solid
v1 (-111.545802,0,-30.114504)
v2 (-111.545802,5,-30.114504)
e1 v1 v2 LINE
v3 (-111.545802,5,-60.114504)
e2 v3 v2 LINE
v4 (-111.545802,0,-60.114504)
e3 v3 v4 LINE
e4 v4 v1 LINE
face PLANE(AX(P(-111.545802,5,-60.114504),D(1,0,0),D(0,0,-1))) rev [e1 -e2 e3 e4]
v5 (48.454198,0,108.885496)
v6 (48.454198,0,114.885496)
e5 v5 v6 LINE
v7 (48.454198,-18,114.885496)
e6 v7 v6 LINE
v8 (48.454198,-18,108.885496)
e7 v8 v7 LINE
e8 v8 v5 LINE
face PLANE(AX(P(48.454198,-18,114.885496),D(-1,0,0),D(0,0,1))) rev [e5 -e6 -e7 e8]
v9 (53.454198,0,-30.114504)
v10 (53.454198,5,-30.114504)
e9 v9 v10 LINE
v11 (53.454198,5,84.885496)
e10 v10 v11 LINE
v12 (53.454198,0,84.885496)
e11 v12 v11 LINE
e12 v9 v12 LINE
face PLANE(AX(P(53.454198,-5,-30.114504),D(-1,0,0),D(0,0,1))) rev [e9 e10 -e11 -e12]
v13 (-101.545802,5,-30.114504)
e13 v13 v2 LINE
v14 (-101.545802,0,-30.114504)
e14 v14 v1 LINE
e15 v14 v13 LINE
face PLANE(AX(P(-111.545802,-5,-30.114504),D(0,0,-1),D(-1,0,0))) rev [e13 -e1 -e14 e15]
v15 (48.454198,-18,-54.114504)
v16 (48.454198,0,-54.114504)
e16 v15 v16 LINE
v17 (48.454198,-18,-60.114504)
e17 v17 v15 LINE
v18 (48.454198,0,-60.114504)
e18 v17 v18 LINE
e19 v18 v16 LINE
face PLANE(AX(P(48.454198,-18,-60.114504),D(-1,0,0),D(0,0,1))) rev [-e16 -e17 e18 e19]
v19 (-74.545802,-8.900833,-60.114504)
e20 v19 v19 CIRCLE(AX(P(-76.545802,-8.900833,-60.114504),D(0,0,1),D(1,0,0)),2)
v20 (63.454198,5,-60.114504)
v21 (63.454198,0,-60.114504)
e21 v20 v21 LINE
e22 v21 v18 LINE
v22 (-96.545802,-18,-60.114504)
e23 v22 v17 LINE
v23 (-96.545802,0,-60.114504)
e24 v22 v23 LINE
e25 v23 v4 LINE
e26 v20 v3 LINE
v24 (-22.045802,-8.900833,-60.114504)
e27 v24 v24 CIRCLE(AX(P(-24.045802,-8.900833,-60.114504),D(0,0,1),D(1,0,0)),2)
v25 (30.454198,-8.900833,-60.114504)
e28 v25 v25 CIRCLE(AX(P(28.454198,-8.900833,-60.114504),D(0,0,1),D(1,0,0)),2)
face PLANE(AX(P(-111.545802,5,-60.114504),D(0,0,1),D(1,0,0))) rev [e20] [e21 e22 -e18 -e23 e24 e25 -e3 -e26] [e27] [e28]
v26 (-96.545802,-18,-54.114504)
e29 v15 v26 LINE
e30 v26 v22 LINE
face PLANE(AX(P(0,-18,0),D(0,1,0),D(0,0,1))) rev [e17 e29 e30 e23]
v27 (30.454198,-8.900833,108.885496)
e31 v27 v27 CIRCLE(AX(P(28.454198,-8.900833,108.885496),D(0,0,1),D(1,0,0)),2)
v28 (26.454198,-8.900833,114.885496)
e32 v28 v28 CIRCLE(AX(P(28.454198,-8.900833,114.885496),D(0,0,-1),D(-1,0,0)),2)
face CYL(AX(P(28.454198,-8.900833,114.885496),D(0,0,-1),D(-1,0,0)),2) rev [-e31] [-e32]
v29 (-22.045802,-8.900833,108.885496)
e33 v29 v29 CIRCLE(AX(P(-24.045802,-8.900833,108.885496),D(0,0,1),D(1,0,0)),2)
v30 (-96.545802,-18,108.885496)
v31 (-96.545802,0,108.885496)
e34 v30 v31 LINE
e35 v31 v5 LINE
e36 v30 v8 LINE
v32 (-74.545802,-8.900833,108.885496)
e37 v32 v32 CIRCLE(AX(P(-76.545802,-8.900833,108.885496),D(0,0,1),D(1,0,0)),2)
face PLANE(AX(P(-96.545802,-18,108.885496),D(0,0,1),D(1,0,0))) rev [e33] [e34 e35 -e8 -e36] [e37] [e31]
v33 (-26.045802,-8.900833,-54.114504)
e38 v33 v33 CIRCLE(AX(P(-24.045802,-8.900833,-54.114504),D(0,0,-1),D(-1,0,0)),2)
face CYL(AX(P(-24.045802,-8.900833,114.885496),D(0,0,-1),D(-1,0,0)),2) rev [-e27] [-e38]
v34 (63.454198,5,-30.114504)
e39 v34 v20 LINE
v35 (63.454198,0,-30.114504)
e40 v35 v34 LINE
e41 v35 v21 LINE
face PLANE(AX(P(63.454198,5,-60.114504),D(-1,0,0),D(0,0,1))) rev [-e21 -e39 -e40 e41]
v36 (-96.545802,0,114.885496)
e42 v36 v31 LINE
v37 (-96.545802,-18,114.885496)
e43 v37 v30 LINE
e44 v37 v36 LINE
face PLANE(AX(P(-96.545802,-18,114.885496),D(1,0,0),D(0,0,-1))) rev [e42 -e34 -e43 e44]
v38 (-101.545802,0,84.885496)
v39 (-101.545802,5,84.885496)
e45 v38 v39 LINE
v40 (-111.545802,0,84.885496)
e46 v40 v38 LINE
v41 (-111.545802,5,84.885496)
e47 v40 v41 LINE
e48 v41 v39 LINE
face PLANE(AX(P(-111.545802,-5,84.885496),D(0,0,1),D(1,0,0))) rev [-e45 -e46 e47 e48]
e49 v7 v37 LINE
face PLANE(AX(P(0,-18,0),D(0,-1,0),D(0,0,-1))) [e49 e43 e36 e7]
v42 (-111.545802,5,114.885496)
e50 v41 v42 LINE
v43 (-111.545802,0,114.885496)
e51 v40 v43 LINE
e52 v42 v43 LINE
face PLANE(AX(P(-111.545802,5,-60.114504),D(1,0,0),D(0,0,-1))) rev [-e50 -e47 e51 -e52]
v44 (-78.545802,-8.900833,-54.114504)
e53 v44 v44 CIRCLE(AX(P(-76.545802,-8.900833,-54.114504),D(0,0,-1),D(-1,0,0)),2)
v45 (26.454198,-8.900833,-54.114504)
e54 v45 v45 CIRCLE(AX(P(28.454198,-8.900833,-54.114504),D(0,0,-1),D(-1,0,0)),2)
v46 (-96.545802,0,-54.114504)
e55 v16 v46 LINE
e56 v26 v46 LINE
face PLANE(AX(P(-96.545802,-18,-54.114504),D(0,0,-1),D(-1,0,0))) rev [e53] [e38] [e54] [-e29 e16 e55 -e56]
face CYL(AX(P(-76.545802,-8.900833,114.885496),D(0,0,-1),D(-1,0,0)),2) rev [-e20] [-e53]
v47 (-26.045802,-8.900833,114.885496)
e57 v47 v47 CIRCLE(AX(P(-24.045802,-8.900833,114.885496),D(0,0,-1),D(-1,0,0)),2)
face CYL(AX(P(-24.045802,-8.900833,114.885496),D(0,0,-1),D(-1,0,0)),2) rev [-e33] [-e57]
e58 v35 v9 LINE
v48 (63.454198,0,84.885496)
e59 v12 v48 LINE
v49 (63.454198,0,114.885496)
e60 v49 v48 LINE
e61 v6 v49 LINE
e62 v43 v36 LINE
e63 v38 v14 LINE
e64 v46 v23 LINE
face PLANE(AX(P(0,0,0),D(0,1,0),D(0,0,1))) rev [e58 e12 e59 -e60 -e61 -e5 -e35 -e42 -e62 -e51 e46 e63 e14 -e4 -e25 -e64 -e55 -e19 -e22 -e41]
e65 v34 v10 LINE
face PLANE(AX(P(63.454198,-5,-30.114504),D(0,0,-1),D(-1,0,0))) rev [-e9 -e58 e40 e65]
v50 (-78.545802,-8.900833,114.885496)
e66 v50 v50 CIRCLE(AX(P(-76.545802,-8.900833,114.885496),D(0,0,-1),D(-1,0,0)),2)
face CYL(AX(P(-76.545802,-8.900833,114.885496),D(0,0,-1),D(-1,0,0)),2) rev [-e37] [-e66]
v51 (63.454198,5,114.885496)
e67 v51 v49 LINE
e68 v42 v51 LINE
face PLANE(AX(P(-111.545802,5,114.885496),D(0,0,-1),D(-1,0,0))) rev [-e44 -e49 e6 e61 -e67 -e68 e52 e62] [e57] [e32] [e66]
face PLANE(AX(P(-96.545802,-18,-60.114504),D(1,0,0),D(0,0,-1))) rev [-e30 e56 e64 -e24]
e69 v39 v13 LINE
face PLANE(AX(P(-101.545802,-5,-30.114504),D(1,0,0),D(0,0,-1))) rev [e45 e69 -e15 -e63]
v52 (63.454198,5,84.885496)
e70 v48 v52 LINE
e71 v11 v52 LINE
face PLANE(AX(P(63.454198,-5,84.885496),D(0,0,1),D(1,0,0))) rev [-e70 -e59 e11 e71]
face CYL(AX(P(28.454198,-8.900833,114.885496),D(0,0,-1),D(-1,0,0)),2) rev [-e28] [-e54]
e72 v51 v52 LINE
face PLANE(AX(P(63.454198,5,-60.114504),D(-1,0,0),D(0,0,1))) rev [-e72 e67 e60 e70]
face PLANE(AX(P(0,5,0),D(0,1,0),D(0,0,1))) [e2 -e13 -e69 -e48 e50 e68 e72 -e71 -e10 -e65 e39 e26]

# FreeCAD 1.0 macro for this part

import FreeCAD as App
import Part
import Sketcher
Q = App.Units.Quantity

doc = App.newDocument("Part")
body = doc.addObject("PartDesign::Body", "Body")

# Sketch on XZ plane
sketch1 = body.newObject("Sketcher::SketchObject", "Sketch")
sketch1.AttachmentSupport = (doc.getObject("XZ_Plane"), [""])
sketch1.MapMode = "FlatFace"
sketch1.addGeometry(Part.LineSegment(App.Vector(-112, -60, 0), App.Vector(-112, 115, 0)), False)
sketch1.addGeometry(Part.LineSegment(App.Vector(-112, 115, 0), App.Vector(63, 115, 0)), False)
sketch1.addGeometry(Part.LineSegment(App.Vector(63, 115, 0), App.Vector(63, -60, 0)), False)
sketch1.addGeometry(Part.LineSegment(App.Vector(63, -60, 0), App.Vector(-112, -60, 0)), False)
sketch1.addConstraint(Sketcher.Constraint("Coincident", 0, 2, 1, 1))
sketch1.addConstraint(Sketcher.Constraint("Coincident", 1, 2, 2, 1))
sketch1.addConstraint(Sketcher.Constraint("Coincident", 2, 2, 3, 1))
sketch1.addConstraint(Sketcher.Constraint("Coincident", 3, 2, 0, 1))
sketch1.addConstraint(Sketcher.Constraint("Vertical", 0))
sketch1.addConstraint(Sketcher.Constraint("Horizontal", 1))
sketch1.addConstraint(Sketcher.Constraint("Vertical", 2))
sketch1.addConstraint(Sketcher.Constraint("Horizontal", 3))
sketch1.addConstraint(Sketcher.Constraint("Equal", 3, 0))
sketch1.addConstraint(Sketcher.Constraint("DistanceX", 1, 1, 1, 2, Q("175 mm")))
sketch1.addConstraint(Sketcher.Constraint("DistanceX", 0, 2, -1, 1, Q("111.545802 mm")))
sketch1.addConstraint(Sketcher.Constraint("DistanceY", -1, 1, 0, 2, Q("114.885496 mm")))
pad1 = body.newObject("PartDesign::Pad", "Pad")
pad1.Profile = sketch1
pad1.Length = 5
pad1.Reversed = True

# Sketch on XZ plane
sketch2 = body.newObject("Sketcher::SketchObject", "Sketch001")
sketch2.AttachmentSupport = (doc.getObject("XZ_Plane"), [""])
sketch2.MapMode = "FlatFace"
sketch2.addGeometry(Part.LineSegment(App.Vector(-97, 115, 0), App.Vector(-97, 109, 0)), False)
sketch2.addGeometry(Part.LineSegment(App.Vector(-97, 109, 0), App.Vector(48, 109, 0)), False)
sketch2.addGeometry(Part.LineSegment(App.Vector(48, 109, 0), App.Vector(48, 115, 0)), False)
sketch2.addGeometry(Part.LineSegment(App.Vector(48, 115, 0), App.Vector(-97, 115, 0)), False)
sketch2.addGeometry(Part.LineSegment(App.Vector(-97, -54, 0), App.Vector(-97, -60, 0)), False)
sketch2.addGeometry(Part.LineSegment(App.Vector(-97, -60, 0), App.Vector(48, -60, 0)), False)
sketch2.addGeometry(Part.LineSegment(App.Vector(48, -60, 0), App.Vector(48, -54, 0)), False)
sketch2.addGeometry(Part.LineSegment(App.Vector(48, -54, 0), App.Vector(-97, -54, 0)), False)
sketch2.addConstraint(Sketcher.Constraint("Coincident", 0, 2, 1, 1))
sketch2.addConstraint(Sketcher.Constraint("Coincident", 1, 2, 2, 1))
sketch2.addConstraint(Sketcher.Constraint("Coincident", 2, 2, 3, 1))
sketch2.addConstraint(Sketcher.Constraint("Coincident", 3, 2, 0, 1))
sketch2.addConstraint(Sketcher.Constraint("Coincident", 4, 2, 5, 1))
sketch2.addConstraint(Sketcher.Constraint("Coincident", 5, 2, 6, 1))
sketch2.addConstraint(Sketcher.Constraint("Coincident", 6, 2, 7, 1))
sketch2.addConstraint(Sketcher.Constraint("Coincident", 7, 2, 4, 1))
sketch2.addConstraint(Sketcher.Constraint("Vertical", 0))
sketch2.addConstraint(Sketcher.Constraint("Horizontal", 1))
sketch2.addConstraint(Sketcher.Constraint("Vertical", 2))
sketch2.addConstraint(Sketcher.Constraint("Horizontal", 3))
sketch2.addConstraint(Sketcher.Constraint("Vertical", 4))
sketch2.addConstraint(Sketcher.Constraint("Horizontal", 5))
sketch2.addConstraint(Sketcher.Constraint("Vertical", 6))
sketch2.addConstraint(Sketcher.Constraint("Horizontal", 7))
sketch2.addConstraint(Sketcher.Constraint("Vertical", 3, 2, 4, 2))
sketch2.addConstraint(Sketcher.Constraint("Vertical", 2, 2, 5, 2))
sketch2.addConstraint(Sketcher.Constraint("Equal", 2, 4))
sketch2.addConstraint(Sketcher.Constraint("DistanceX", 1, 1, 1, 2, Q("145 mm")))
sketch2.addConstraint(Sketcher.Constraint("DistanceY", 0, 2, 0, 1, Q("6 mm")))
sketch2.addConstraint(Sketcher.Constraint("DistanceY", 4, 2, 0, 2, Q("169 mm")))
sketch2.addConstraint(Sketcher.Constraint("DistanceX", 0, 2, -1, 1, Q("96.545802 mm")))
sketch2.addConstraint(Sketcher.Constraint("DistanceY", -1, 1, 0, 2, Q("108.885496 mm")))
pad2 = body.newObject("PartDesign::Pad", "Pad001")
pad2.Profile = sketch2
pad2.Length = 18

# Sketch on XY plane
sketch3 = body.newObject("Sketcher::SketchObject", "Sketch002")
sketch3.AttachmentSupport = (doc.getObject("XY_Plane"), [""])
sketch3.MapMode = "FlatFace"
sketch3.AttachmentOffset = App.Placement(App.Vector(0, 0, -60.114504), App.Rotation())
sketch3.addGeometry(Part.Circle(App.Vector(28.5, -8.9, 0), App.Vector(0, 0, 1), 2), False)
sketch3.addGeometry(Part.Circle(App.Vector(-24, -8.9, 0), App.Vector(0, 0, 1), 2), False)
sketch3.addGeometry(Part.Circle(App.Vector(-76.5, -8.9, 0), App.Vector(0, 0, 1), 2), False)
sketch3.addConstraint(Sketcher.Constraint("Equal", 0, 1))
sketch3.addConstraint(Sketcher.Constraint("Equal", 1, 2))
sketch3.addConstraint(Sketcher.Constraint("Horizontal", 0, 3, 1, 3))
sketch3.addConstraint(Sketcher.Constraint("Horizontal", 1, 3, 2, 3))
sketch3.addConstraint(Sketcher.Constraint("Diameter", 0, Q("4 mm")))
sketch3.addConstraint(Sketcher.Constraint("DistanceX", 2, 3, 0, 3, Q("105 mm")))
sketch3.addConstraint(Sketcher.Constraint("DistanceX", 1, 3, 0, 3, Q("52.5 mm")))
sketch3.addConstraint(Sketcher.Constraint("DistanceX", -1, 1, 0, 3, Q("28.454198 mm")))
sketch3.addConstraint(Sketcher.Constraint("DistanceY", 0, 3, -1, 1, Q("8.900833 mm")))
pocket1 = body.newObject("PartDesign::Pocket", "Pocket")
pocket1.Profile = sketch3
pocket1.Type = "ThroughAll"
pocket1.Midplane = True

# Sketch on XZ plane
sketch4 = body.newObject("Sketcher::SketchObject", "Sketch003")
sketch4.AttachmentSupport = (doc.getObject("XZ_Plane"), [""])
sketch4.MapMode = "FlatFace"
sketch4.AttachmentOffset = App.Placement(App.Vector(0, 0, -5), App.Rotation())
sketch4.addGeometry(Part.LineSegment(App.Vector(-112, -30, 0), App.Vector(-112, 85, 0)), False)
sketch4.addGeometry(Part.LineSegment(App.Vector(-112, 85, 0), App.Vector(-102, 85, 0)), False)
sketch4.addGeometry(Part.LineSegment(App.Vector(-102, 85, 0), App.Vector(-102, -30, 0)), False)
sketch4.addGeometry(Part.LineSegment(App.Vector(-102, -30, 0), App.Vector(-112, -30, 0)), False)
sketch4.addGeometry(Part.LineSegment(App.Vector(53, -30, 0), App.Vector(53, 85, 0)), False)
sketch4.addGeometry(Part.LineSegment(App.Vector(53, 85, 0), App.Vector(63, 85, 0)), False)
sketch4.addGeometry(Part.LineSegment(App.Vector(63, 85, 0), App.Vector(63, -30, 0)), False)
sketch4.addGeometry(Part.LineSegment(App.Vector(63, -30, 0), App.Vector(53, -30, 0)), False)
sketch4.addConstraint(Sketcher.Constraint("Coincident", 0, 2, 1, 1))
sketch4.addConstraint(Sketcher.Constraint("Coincident", 1, 2, 2, 1))
sketch4.addConstraint(Sketcher.Constraint("Coincident", 2, 2, 3, 1))
sketch4.addConstraint(Sketcher.Constraint("Coincident", 3, 2, 0, 1))
sketch4.addConstraint(Sketcher.Constraint("Coincident", 4, 2, 5, 1))
sketch4.addConstraint(Sketcher.Constraint("Coincident", 5, 2, 6, 1))
sketch4.addConstraint(Sketcher.Constraint("Coincident", 6, 2, 7, 1))
sketch4.addConstraint(Sketcher.Constraint("Coincident", 7, 2, 4, 1))
sketch4.addConstraint(Sketcher.Constraint("Vertical", 0))
sketch4.addConstraint(Sketcher.Constraint("Horizontal", 1))
sketch4.addConstraint(Sketcher.Constraint("Vertical", 2))
sketch4.addConstraint(Sketcher.Constraint("Horizontal", 3))
sketch4.addConstraint(Sketcher.Constraint("Vertical", 4))
sketch4.addConstraint(Sketcher.Constraint("Horizontal", 5))
sketch4.addConstraint(Sketcher.Constraint("Vertical", 6))
sketch4.addConstraint(Sketcher.Constraint("Horizontal", 7))
sketch4.addConstraint(Sketcher.Constraint("Horizontal", 1, 2, 4, 2))
sketch4.addConstraint(Sketcher.Constraint("Horizontal", 3, 2, 6, 2))
sketch4.addConstraint(Sketcher.Constraint("Equal", 3, 5))
sketch4.addConstraint(Sketcher.Constraint("DistanceX", 1, 1, 1, 2, Q("10 mm")))
sketch4.addConstraint(Sketcher.Constraint("DistanceY", 0, 1, 0, 2, Q("115 mm")))
sketch4.addConstraint(Sketcher.Constraint("DistanceX", 1, 2, 4, 2, Q("155 mm")))
sketch4.addConstraint(Sketcher.Constraint("DistanceX", 0, 2, -1, 1, Q("111.545802 mm")))
sketch4.addConstraint(Sketcher.Constraint("DistanceY", -1, 1, 0, 2, Q("84.885496 mm")))
pocket2 = body.newObject("PartDesign::Pocket", "Pocket001")
pocket2.Profile = sketch4
pocket2.Length = 10
pocket2.Reversed = True

doc.recompute()
